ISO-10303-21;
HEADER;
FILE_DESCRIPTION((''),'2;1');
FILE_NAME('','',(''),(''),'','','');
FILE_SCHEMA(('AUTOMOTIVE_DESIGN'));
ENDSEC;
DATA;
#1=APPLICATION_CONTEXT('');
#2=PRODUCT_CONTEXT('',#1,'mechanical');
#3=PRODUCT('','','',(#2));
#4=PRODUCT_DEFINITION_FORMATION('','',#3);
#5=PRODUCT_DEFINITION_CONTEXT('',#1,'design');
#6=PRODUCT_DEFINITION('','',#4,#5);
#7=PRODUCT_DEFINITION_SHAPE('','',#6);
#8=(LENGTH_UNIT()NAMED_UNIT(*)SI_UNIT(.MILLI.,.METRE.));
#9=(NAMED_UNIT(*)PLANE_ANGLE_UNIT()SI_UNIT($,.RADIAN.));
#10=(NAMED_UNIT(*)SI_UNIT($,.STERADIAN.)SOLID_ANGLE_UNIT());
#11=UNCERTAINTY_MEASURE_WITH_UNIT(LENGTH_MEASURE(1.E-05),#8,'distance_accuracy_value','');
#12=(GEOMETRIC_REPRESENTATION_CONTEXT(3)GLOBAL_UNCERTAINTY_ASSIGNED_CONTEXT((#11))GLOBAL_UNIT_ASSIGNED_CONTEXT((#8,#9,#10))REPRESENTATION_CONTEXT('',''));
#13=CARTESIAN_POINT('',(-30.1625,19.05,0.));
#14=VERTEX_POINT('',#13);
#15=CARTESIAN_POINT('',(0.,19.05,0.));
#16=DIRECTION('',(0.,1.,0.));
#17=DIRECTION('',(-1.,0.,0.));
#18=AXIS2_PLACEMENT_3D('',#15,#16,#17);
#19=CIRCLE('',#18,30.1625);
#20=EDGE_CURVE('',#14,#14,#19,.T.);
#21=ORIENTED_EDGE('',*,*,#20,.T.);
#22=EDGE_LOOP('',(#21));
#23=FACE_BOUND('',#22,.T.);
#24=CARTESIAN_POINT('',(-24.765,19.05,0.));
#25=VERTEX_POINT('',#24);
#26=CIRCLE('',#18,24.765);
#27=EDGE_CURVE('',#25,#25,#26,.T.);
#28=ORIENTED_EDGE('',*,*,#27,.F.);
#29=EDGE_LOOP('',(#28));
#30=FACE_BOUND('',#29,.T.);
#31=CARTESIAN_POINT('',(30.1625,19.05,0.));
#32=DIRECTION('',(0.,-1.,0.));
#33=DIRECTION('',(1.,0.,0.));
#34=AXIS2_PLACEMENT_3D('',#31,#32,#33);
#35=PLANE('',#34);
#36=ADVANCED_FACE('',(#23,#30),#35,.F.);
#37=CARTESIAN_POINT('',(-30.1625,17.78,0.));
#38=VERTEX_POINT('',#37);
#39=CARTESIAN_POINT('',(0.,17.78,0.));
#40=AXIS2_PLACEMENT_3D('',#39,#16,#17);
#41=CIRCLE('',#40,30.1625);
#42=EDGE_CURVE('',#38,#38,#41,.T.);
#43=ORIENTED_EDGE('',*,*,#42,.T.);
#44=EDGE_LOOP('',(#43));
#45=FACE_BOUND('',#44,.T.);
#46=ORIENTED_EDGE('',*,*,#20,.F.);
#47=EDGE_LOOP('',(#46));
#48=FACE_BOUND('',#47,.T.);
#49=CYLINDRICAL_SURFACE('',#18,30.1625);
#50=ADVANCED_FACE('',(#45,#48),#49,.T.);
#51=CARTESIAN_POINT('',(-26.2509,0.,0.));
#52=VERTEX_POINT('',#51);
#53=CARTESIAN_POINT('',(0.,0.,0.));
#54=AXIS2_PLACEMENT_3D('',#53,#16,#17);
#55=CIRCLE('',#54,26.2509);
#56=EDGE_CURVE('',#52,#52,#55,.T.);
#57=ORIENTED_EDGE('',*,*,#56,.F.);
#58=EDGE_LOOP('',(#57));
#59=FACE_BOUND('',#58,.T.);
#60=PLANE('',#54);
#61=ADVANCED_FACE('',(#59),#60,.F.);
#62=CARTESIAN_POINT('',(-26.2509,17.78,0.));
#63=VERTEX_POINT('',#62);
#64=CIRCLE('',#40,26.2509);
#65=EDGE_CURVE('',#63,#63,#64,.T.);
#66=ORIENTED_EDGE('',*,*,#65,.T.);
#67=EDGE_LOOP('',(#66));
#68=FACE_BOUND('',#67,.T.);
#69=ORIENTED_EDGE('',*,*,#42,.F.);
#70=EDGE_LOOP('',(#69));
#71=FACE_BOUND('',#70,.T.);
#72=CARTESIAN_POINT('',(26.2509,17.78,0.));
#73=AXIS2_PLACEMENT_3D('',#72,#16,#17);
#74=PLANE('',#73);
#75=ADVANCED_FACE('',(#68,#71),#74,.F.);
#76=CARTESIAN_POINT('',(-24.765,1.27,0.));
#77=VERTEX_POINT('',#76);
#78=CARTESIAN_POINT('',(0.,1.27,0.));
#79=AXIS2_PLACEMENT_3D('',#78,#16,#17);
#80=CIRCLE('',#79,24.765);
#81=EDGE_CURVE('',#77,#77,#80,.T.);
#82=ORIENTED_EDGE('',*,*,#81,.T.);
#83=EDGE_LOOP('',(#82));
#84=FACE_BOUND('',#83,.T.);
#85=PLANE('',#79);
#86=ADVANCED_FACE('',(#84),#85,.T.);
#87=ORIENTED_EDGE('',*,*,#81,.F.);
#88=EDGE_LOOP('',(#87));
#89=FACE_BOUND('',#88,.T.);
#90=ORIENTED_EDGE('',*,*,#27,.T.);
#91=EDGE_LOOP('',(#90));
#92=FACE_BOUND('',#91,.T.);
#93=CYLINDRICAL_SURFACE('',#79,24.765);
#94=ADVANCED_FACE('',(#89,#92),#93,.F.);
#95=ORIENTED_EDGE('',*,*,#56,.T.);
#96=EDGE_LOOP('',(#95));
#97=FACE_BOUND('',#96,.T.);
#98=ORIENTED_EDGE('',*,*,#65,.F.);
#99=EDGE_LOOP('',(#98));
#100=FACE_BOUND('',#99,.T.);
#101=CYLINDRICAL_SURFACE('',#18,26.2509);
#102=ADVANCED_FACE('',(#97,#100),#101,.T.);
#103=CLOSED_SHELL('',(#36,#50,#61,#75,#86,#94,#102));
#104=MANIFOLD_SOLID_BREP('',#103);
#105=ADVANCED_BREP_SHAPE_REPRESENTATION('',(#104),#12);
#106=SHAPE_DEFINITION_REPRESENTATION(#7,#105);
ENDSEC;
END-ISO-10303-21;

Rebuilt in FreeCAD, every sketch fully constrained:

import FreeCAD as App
import Part
import Sketcher
from FreeCAD import Vector
Q = App.Units.Quantity

doc = App.newDocument("Part")
params = doc.addObject("Spreadsheet::Sheet", "Params")
for row, (alias, value) in enumerate([
    ("sketch1_height", "0.7 in"),
    ("sketch1_height2", "0.05 in"),
    ("sketch1_width", "0.154 in"),
    ("sketch1_width2", "1.1875 in"),
    ("revolution_angle", "360 deg"),
    ("sketch2_diameter", "1.95 in"),
    ("pocket1_length", "0.7 in"),
], start=1):
    params.set(f"A{row}", alias)
    params.set(f"B{row}", "=" + value)
    params.setAlias(f"B{row}", alias)

body = doc.addObject("PartDesign::Body", "Body")

sketch1 = body.newObject("Sketcher::SketchObject", "Sketch")
sketch1.AttachmentSupport = (doc.getObject("XY_Plane"), [""])
sketch1.MapMode = "FlatFace"
sketch1.addGeometry(Part.LineSegment(Vector(0, 0, 0), Vector(26.2509, 0, 0)), False)
sketch1.addGeometry(Part.LineSegment(Vector(26.2509, 0, 0), Vector(26.2509, 17.78, 0)), False)
sketch1.addGeometry(Part.LineSegment(Vector(26.2509, 17.78, 0), Vector(30.1625, 17.78, 0)), False)
sketch1.addGeometry(Part.LineSegment(Vector(30.1625, 17.78, 0), Vector(30.1625, 19.05, 0)), False)
sketch1.addGeometry(Part.LineSegment(Vector(30.1625, 19.05, 0), Vector(0, 19.05, 0)), False)
sketch1.addGeometry(Part.LineSegment(Vector(0, 19.05, 0), Vector(0, 0, 0)), False)
sketch1.addConstraint(Sketcher.Constraint("Coincident", 0, 2, 1, 1))
sketch1.addConstraint(Sketcher.Constraint("Coincident", 1, 2, 2, 1))
sketch1.addConstraint(Sketcher.Constraint("Coincident", 2, 2, 3, 1))
sketch1.addConstraint(Sketcher.Constraint("Coincident", 3, 2, 4, 1))
sketch1.addConstraint(Sketcher.Constraint("Coincident", 4, 2, 5, 1))
sketch1.addConstraint(Sketcher.Constraint("Coincident", 5, 2, 0, 1))
sketch1.addConstraint(Sketcher.Constraint("Horizontal", 0))
sketch1.addConstraint(Sketcher.Constraint("Vertical", 1))
sketch1.addConstraint(Sketcher.Constraint("Horizontal", 2))
sketch1.addConstraint(Sketcher.Constraint("Vertical", 3))
sketch1.addConstraint(Sketcher.Constraint("Horizontal", 4))
sketch1.addConstraint(Sketcher.Constraint("Vertical", 5))
sketch1.addConstraint(Sketcher.Constraint("Coincident", 5, 2, -1, 1))
sketch1.addConstraint(Sketcher.Constraint("DistanceY", 1, 1, 1, 2, Q("0.7 in")))
sketch1.addConstraint(Sketcher.Constraint("DistanceY", 3, 1, 3, 2, Q("0.05 in")))
sketch1.addConstraint(Sketcher.Constraint("DistanceX", 2, 1, 2, 2, Q("0.154 in")))
sketch1.addConstraint(Sketcher.Constraint("DistanceX", 4, 2, 4, 1, Q("1.1875 in")))
sketch1.setExpression("Constraints[13]", "Params.sketch1_height")
sketch1.setExpression("Constraints[14]", "Params.sketch1_height2")
sketch1.setExpression("Constraints[15]", "Params.sketch1_width")
sketch1.setExpression("Constraints[16]", "Params.sketch1_width2")
revolution = body.newObject("PartDesign::Revolution", "Revolution")
revolution.Profile = sketch1
revolution.ReferenceAxis = (sketch1, ["V_Axis"])
revolution.setExpression("Angle", "Params.revolution_angle")

sketch2 = body.newObject("Sketcher::SketchObject", "Sketch001")
sketch2.AttachmentSupport = (doc.getObject("XZ_Plane"), [""])
sketch2.MapMode = "FlatFace"
sketch2.AttachmentOffset = App.Placement(Vector(0, 0, -0.75 * 25.4), App.Rotation())
sketch2.addGeometry(Part.Circle(Vector(0, 0, 0), Vector(0, 0, 1), 24.765), False)
sketch2.addConstraint(Sketcher.Constraint("Coincident", 0, 3, -1, 1))
sketch2.addConstraint(Sketcher.Constraint("Diameter", 0, Q("1.95 in")))
sketch2.setExpression("Constraints[1]", "Params.sketch2_diameter")
pocket1 = body.newObject("PartDesign::Pocket", "Pocket")
pocket1.Profile = sketch2
pocket1.setExpression("Length", "Params.pocket1_length")
pocket1.Reversed = True

doc.recompute()
